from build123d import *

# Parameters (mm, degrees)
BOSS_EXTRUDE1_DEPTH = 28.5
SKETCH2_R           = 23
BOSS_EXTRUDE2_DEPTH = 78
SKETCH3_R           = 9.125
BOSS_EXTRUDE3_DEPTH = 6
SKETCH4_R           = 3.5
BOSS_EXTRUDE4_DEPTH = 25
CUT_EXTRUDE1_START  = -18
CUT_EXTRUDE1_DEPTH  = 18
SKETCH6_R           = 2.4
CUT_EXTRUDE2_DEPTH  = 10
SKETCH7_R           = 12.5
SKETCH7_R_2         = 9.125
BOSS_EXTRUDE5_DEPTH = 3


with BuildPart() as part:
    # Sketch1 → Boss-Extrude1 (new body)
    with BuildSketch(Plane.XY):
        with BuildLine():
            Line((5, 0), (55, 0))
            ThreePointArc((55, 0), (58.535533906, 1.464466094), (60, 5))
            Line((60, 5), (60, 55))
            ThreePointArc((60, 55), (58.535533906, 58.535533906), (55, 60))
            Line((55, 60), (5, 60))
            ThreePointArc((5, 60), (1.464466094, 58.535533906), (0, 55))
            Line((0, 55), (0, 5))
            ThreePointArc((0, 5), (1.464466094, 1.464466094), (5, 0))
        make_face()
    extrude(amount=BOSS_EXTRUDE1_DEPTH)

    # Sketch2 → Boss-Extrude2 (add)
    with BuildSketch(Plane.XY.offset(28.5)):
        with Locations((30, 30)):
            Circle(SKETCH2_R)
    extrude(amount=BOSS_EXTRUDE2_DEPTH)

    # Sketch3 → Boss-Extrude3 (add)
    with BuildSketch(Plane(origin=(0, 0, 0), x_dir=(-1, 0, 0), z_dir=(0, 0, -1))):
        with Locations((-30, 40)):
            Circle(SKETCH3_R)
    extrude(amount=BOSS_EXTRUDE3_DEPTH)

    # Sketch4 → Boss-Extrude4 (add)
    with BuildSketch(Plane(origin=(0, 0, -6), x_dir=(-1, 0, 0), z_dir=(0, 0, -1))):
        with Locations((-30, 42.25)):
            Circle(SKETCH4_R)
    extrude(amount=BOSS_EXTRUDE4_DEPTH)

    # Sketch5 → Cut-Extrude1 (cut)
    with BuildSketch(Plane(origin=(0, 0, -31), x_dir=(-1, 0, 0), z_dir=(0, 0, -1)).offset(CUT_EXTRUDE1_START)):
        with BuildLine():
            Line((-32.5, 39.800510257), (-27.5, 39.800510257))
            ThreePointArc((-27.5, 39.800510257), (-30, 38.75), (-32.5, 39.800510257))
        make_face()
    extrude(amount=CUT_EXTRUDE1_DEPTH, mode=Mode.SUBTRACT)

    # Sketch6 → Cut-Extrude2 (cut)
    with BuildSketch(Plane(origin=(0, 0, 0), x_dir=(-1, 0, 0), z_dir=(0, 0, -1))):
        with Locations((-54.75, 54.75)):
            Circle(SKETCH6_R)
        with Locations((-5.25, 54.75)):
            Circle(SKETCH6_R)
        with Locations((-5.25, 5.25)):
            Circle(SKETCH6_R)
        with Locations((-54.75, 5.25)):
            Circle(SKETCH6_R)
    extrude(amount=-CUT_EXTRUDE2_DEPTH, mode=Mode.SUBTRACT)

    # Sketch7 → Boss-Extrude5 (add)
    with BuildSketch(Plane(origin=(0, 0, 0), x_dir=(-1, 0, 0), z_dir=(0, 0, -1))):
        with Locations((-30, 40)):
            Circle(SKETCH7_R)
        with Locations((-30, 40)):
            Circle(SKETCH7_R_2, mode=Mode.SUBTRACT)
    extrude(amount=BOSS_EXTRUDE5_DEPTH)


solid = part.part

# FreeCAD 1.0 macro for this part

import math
import FreeCAD as App
import Part
import Sketcher

V = App.Vector
Q = App.Units.Quantity

doc = App.newDocument("Part")
body = doc.addObject("PartDesign::Body", "Body")

# Sketch on XY plane
sketch1 = body.newObject("Sketcher::SketchObject", "Sketch")
sketch1.AttachmentSupport = (doc.getObject("XY_Plane"), [""])
sketch1.MapMode = "FlatFace"
sketch1.addGeometry([
    Part.LineSegment(V(5, 0, 0), V(55, 0, 0)),  # 0
    Part.ArcOfCircle(Part.Circle(V(55, 5, 0), V(0, 0, 1), 5), math.radians(-90), math.radians(0)),  # 1
    Part.LineSegment(V(60, 5, 0), V(60, 55, 0)),  # 2
    Part.ArcOfCircle(Part.Circle(V(55, 55, 0), V(0, 0, 1), 5), math.radians(0), math.radians(90)),  # 3
    Part.LineSegment(V(55, 60, 0), V(5, 60, 0)),  # 4
    Part.ArcOfCircle(Part.Circle(V(5, 55, 0), V(0, 0, 1), 5), math.radians(90), math.radians(180)),  # 5
    Part.LineSegment(V(0, 55, 0), V(0, 5, 0)),  # 6
    Part.ArcOfCircle(Part.Circle(V(5, 5, 0), V(0, 0, 1), 5), math.radians(180), math.radians(270)),  # 7
], False)
sketch1.addConstraint([
    Sketcher.Constraint("Tangent", 0, 2, 1, 1),
    Sketcher.Constraint("Tangent", 1, 2, 2, 1),
    Sketcher.Constraint("Tangent", 2, 2, 3, 1),
    Sketcher.Constraint("Tangent", 3, 2, 4, 1),
    Sketcher.Constraint("Tangent", 4, 2, 5, 1),
    Sketcher.Constraint("Tangent", 5, 2, 6, 1),
    Sketcher.Constraint("Tangent", 6, 2, 7, 1),
    Sketcher.Constraint("Tangent", 7, 2, 0, 1),
    Sketcher.Constraint("Horizontal", 0),
    Sketcher.Constraint("Vertical", 2),
    Sketcher.Constraint("Horizontal", 4),
    Sketcher.Constraint("Vertical", 6),
    Sketcher.Constraint("Equal", 1, 3),
    Sketcher.Constraint("Equal", 3, 5),
    Sketcher.Constraint("Equal", 5, 7),
    Sketcher.Constraint("PointOnObject", 0, 2, -1),
    Sketcher.Constraint("PointOnObject", 5, 2, -2),
    Sketcher.Constraint("Equal", 4, 2),
    Sketcher.Constraint("Radius", 1, Q("5 mm")),
    Sketcher.Constraint("DistanceX", 0, 1, 0, 2, Q("50 mm")),
])
pad1 = body.newObject("PartDesign::Pad", "Pad")
pad1.Profile = sketch1
pad1.Length = 28.5

# Sketch on XY plane
sketch2 = body.newObject("Sketcher::SketchObject", "Sketch001")
sketch2.AttachmentSupport = (doc.getObject("XY_Plane"), [""])
sketch2.MapMode = "FlatFace"
sketch2.AttachmentOffset = App.Placement(V(0, 0, 28.5), App.Rotation())
sketch2.addGeometry(Part.Circle(V(30, 30, 0), V(0, 0, 1), 23), False)
sketch2.addConstraint([
    Sketcher.Constraint("Diameter", 0, Q("46 mm")),
    Sketcher.Constraint("DistanceX", -1, 1, 0, 3, Q("30 mm")),
    Sketcher.Constraint("DistanceY", -1, 1, 0, 3, Q("30 mm")),
])
pad2 = body.newObject("PartDesign::Pad", "Pad001")
pad2.Profile = sketch2
pad2.Length = 78

# Sketch on XY plane
sketch3 = body.newObject("Sketcher::SketchObject", "Sketch002")
sketch3.AttachmentSupport = (doc.getObject("XY_Plane"), [""])
sketch3.MapMode = "FlatFace"
sketch3.addGeometry(Part.Circle(V(30, 40, 0), V(0, 0, 1), 9), False)
sketch3.addConstraint([
    Sketcher.Constraint("Diameter", 0, Q("18.25 mm")),
    Sketcher.Constraint("DistanceX", -1, 1, 0, 3, Q("30 mm")),
    Sketcher.Constraint("DistanceY", -1, 1, 0, 3, Q("40 mm")),
])
pad3 = body.newObject("PartDesign::Pad", "Pad002")
pad3.Profile = sketch3
pad3.Length = 6
pad3.Reversed = True

# Sketch on XY plane
sketch4 = body.newObject("Sketcher::SketchObject", "Sketch003")
sketch4.AttachmentSupport = (doc.getObject("XY_Plane"), [""])
sketch4.MapMode = "FlatFace"
sketch4.AttachmentOffset = App.Placement(V(0, 0, -6), App.Rotation())
sketch4.addGeometry(Part.Circle(V(30, 42.2, 0), V(0, 0, 1), 3.5), False)
sketch4.addConstraint([
    Sketcher.Constraint("Diameter", 0, Q("7 mm")),
    Sketcher.Constraint("DistanceX", -1, 1, 0, 3, Q("30 mm")),
    Sketcher.Constraint("DistanceY", -1, 1, 0, 3, Q("42.25 mm")),
])
pad4 = body.newObject("PartDesign::Pad", "Pad003")
pad4.Profile = sketch4
pad4.Length = 25
pad4.Reversed = True

# Sketch on XY plane
sketch5 = body.newObject("Sketcher::SketchObject", "Sketch004")
sketch5.AttachmentSupport = (doc.getObject("XY_Plane"), [""])
sketch5.MapMode = "FlatFace"
sketch5.AttachmentOffset = App.Placement(V(0, 0, -13), App.Rotation())
sketch5.addGeometry([
    Part.LineSegment(V(27.5, 39.8, 0), V(32.5, 39.8, 0)),
    Part.ArcOfCircle(Part.Circle(V(30, 42.3, 0), V(0, 0, 1), 3.5), math.radians(-136), math.radians(-44)),
], False)
sketch5.addConstraint([
    Sketcher.Constraint("Coincident", 0, 1, 1, 1),
    Sketcher.Constraint("Coincident", 1, 2, 0, 2),
    Sketcher.Constraint("Horizontal", 0),
    Sketcher.Constraint("Radius", 1, Q("3.5 mm")),
    Sketcher.Constraint("DistanceX", 0, 1, 0, 2, Q("5 mm")),
    Sketcher.Constraint("DistanceX", -1, 1, 1, 3, Q("30 mm")),
    Sketcher.Constraint("DistanceY", -1, 1, 1, 3, Q("42.25 mm")),
])
pocket1 = body.newObject("PartDesign::Pocket", "Pocket")
pocket1.Profile = sketch5
pocket1.Length = 18

# Sketch on XY plane
sketch6 = body.newObject("Sketcher::SketchObject", "Sketch005")
sketch6.AttachmentSupport = (doc.getObject("XY_Plane"), [""])
sketch6.MapMode = "FlatFace"
sketch6.addGeometry([
    Part.Circle(V(54.8, 54.8, 0), V(0, 0, 1), 2.4),
    Part.Circle(V(5.2, 54.8, 0), V(0, 0, 1), 2.4),
    Part.Circle(V(5.2, 5.2, 0), V(0, 0, 1), 2.4),
    Part.Circle(V(54.8, 5.2, 0), V(0, 0, 1), 2.4),
], False)
sketch6.addConstraint([
    Sketcher.Constraint("Equal", 0, 1),
    Sketcher.Constraint("Equal", 1, 2),
    Sketcher.Constraint("Equal", 2, 3),
    Sketcher.Constraint("Horizontal", 0, 3, 1, 3),
    Sketcher.Constraint("Horizontal", 2, 3, 3, 3),
    Sketcher.Constraint("Vertical", 1, 3, 2, 3),
    Sketcher.Constraint("Vertical", 0, 3, 3, 3),
    Sketcher.Constraint("Diameter", 0, Q("4.8 mm")),
    Sketcher.Constraint("DistanceX", 1, 3, 0, 3, Q("49.5 mm")),
    Sketcher.Constraint("DistanceY", 2, 3, 1, 3, Q("49.5 mm")),
    Sketcher.Constraint("DistanceX", -1, 1, 0, 3, Q("54.75 mm")),
    Sketcher.Constraint("DistanceY", -1, 1, 0, 3, Q("54.75 mm")),
])
pocket2 = body.newObject("PartDesign::Pocket", "Pocket001")
pocket2.Profile = sketch6
pocket2.Length = 10
pocket2.Reversed = True

# Sketch on XY plane
sketch7 = body.newObject("Sketcher::SketchObject", "Sketch006")
sketch7.AttachmentSupport = (doc.getObject("XY_Plane"), [""])
sketch7.MapMode = "FlatFace"
sketch7.addGeometry([
    Part.Circle(V(30, 40, 0), V(0, 0, 1), 12),
    Part.Circle(V(30, 40, 0), V(0, 0, 1), 9),
], False)
sketch7.addConstraint([
    Sketcher.Constraint("Coincident", 1, 3, 0, 3),
    Sketcher.Constraint("Diameter", 0, Q("25 mm")),
    Sketcher.Constraint("Diameter", 1, Q("18.25 mm")),
    Sketcher.Constraint("DistanceX", -1, 1, 0, 3, Q("30 mm")),
    Sketcher.Constraint("DistanceY", -1, 1, 0, 3, Q("40 mm")),
])
pad5 = body.newObject("PartDesign::Pad", "Pad004")
pad5.Profile = sketch7
pad5.Length = 3
pad5.Reversed = True

doc.recompute()
